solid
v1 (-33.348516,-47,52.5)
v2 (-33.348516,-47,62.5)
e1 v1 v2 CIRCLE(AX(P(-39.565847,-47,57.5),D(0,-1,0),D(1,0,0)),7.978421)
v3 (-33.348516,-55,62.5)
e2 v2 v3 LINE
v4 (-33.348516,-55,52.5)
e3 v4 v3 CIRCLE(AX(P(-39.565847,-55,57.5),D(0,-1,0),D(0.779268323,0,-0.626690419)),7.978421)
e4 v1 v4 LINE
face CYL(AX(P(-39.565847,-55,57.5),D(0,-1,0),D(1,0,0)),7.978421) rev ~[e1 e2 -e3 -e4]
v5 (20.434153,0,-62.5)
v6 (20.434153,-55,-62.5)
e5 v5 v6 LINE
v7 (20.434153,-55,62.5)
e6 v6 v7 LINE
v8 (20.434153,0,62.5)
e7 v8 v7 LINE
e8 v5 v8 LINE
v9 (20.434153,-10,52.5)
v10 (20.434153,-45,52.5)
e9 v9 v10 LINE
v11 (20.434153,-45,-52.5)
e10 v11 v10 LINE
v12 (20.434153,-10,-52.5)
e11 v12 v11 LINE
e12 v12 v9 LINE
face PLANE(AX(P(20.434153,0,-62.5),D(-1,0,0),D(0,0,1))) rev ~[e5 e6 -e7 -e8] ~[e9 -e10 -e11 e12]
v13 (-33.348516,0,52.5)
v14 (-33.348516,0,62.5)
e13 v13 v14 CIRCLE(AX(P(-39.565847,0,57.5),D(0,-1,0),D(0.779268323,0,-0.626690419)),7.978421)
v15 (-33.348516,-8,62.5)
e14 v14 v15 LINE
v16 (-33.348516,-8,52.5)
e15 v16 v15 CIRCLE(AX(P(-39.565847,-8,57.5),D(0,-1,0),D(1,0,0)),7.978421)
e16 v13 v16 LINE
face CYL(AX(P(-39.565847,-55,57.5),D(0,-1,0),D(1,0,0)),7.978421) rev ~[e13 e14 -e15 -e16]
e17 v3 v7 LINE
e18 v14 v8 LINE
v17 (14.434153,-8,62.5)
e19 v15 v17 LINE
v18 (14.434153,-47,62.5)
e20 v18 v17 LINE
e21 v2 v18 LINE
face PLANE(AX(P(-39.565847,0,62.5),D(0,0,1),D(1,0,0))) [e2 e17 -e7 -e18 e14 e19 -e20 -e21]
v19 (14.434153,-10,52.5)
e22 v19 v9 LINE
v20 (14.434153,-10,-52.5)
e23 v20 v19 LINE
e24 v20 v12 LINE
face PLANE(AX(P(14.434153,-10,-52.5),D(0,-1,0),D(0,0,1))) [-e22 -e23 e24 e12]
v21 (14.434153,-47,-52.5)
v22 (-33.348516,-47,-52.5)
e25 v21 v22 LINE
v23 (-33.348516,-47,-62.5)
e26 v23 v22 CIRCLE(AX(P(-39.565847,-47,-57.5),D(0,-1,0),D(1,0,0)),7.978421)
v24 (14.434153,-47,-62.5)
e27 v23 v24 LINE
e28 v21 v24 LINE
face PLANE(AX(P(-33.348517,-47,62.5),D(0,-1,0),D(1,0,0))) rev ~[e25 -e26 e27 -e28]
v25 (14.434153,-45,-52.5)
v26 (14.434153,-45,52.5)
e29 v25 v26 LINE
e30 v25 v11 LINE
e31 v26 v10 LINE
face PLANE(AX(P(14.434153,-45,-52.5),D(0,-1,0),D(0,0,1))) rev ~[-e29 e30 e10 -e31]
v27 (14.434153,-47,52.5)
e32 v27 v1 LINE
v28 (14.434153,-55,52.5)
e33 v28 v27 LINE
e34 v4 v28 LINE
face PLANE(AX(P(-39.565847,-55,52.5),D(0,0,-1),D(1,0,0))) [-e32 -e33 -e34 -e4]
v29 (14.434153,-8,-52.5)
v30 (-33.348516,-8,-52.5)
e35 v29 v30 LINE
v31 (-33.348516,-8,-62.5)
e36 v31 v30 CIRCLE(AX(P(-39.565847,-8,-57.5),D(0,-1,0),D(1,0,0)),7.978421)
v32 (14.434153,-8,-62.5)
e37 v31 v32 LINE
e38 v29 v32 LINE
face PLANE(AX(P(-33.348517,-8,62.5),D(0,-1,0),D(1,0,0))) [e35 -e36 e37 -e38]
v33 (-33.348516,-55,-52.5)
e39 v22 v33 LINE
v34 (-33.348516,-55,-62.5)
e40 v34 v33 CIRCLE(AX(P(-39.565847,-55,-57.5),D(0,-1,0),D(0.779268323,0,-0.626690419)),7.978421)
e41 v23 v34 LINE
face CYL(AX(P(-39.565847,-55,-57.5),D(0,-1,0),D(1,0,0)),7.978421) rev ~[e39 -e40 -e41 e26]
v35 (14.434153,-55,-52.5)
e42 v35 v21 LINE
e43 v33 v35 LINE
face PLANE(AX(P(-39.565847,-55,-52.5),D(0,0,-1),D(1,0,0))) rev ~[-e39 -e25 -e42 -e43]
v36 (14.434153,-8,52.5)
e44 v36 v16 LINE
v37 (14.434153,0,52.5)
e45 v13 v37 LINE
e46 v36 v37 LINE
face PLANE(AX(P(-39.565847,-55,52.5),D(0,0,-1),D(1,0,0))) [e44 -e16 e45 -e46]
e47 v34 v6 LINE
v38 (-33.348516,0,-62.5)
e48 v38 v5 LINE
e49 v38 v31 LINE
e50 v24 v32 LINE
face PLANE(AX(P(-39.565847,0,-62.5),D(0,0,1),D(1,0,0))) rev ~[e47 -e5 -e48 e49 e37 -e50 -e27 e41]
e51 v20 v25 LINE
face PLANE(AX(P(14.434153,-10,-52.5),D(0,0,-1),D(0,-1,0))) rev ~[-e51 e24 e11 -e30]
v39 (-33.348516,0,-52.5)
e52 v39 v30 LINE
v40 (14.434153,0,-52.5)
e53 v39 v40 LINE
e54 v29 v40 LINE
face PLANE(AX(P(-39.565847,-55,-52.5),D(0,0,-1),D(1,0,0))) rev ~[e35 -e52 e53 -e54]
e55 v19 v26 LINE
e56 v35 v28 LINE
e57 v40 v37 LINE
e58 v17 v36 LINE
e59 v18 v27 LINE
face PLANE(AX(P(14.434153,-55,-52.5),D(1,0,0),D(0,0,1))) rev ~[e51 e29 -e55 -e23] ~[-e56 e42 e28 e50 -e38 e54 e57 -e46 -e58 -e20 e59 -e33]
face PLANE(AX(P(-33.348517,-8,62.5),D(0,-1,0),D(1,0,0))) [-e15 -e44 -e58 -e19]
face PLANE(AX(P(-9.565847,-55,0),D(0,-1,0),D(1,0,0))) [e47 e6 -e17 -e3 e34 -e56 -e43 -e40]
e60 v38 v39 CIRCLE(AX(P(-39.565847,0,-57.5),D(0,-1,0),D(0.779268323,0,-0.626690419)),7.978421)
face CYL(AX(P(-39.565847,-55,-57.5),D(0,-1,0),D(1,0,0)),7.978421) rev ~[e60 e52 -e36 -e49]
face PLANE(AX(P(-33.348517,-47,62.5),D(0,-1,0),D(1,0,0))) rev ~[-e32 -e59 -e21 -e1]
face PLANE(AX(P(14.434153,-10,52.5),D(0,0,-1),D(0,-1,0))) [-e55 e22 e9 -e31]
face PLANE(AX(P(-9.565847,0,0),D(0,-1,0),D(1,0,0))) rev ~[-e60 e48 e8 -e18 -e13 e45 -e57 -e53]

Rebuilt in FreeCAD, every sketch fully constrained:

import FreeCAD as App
import Part
import Sketcher


def add_polygon(sketch, points):
    """Adds a closed chain of lines whose ends are joined by coincident constraints."""
    first, n = sketch.GeometryCount, len(points)
    for a, b in zip(points, points[1:] + points[:1]):
        sketch.addGeometry(Part.LineSegment(App.Vector(*a, 0), App.Vector(*b, 0)), False)
    for i in range(n):
        sketch.addConstraint(Sketcher.Constraint("Coincident", first + i, 2, first + (i + 1) % n, 1))

doc = App.newDocument("Part")
params = doc.addObject("Spreadsheet::Sheet", "Params")
for row, (alias, value) in enumerate([
    ("sketch1_width", "60 mm"),
    ("sketch1_height", "125 mm"),
    ("pad1_length", "55 mm"),
    ("sketch2_width", "54 mm"),
    ("sketch2_height", "105 mm"),
    ("sketch4_height", "39 mm"),
    ("sketch5_width", "35 mm"),
    ("sketch5_height", "105 mm"),
], start=1):
    params.set(f"A{row}", alias)
    params.set(f"B{row}", "=" + value)
    params.setAlias(f"B{row}", alias)

body = doc.addObject("PartDesign::Body", "Body")

# Sketch on XZ plane
sketch1 = body.newObject("Sketcher::SketchObject", "Sketch")
sketch1.AttachmentSupport = (doc.getObject("XZ_Plane"), [""])
sketch1.MapMode = "FlatFace"
add_polygon(sketch1, [(-40, 62), (-40, -62), (20, -62), (20, 62)])  # lines 0-3
sketch1.addConstraint(Sketcher.Constraint("Vertical", 0))
sketch1.addConstraint(Sketcher.Constraint("Horizontal", 1))
sketch1.addConstraint(Sketcher.Constraint("Vertical", 2))
sketch1.addConstraint(Sketcher.Constraint("Horizontal", 3))
sketch1.addConstraint(Sketcher.Constraint("DistanceX", 1, 1, 1, 2, 60.0))
sketch1.addConstraint(Sketcher.Constraint("DistanceY", 0, 2, 0, 1, 125.0))
sketch1.addConstraint(Sketcher.Constraint("DistanceY", 0, 2, -1, 1, 62.5))
sketch1.addConstraint(Sketcher.Constraint("DistanceX", 0, 2, -1, 1, 39.565847))
sketch1.setExpression("Constraints[8]", "Params.sketch1_width")
sketch1.setExpression("Constraints[9]", "Params.sketch1_height")
pad1 = body.newObject("PartDesign::Pad", "Pad")
pad1.Profile = sketch1
pad1.setExpression("Length", "Params.pad1_length")

# Sketch on XZ plane
sketch2 = body.newObject("Sketcher::SketchObject", "Sketch001")
sketch2.AttachmentSupport = (doc.getObject("XZ_Plane"), [""])
sketch2.MapMode = "FlatFace"
sketch2.AttachmentOffset = App.Placement(App.Vector(0, 0, 55), App.Rotation())
add_polygon(sketch2, [(-40, 52), (-40, -52), (14, -52), (14, 52)])  # lines 0-3
sketch2.addConstraint(Sketcher.Constraint("Vertical", 0))
sketch2.addConstraint(Sketcher.Constraint("Horizontal", 1))
sketch2.addConstraint(Sketcher.Constraint("Vertical", 2))
sketch2.addConstraint(Sketcher.Constraint("Horizontal", 3))
sketch2.addConstraint(Sketcher.Constraint("DistanceX", 1, 1, 1, 2, 54.0))
sketch2.addConstraint(Sketcher.Constraint("DistanceY", 0, 2, 0, 1, 105.0))
sketch2.addConstraint(Sketcher.Constraint("DistanceY", 0, 2, -1, 1, 52.5))
sketch2.addConstraint(Sketcher.Constraint("DistanceX", 0, 2, -1, 1, 39.565847))
sketch2.setExpression("Constraints[8]", "Params.sketch2_width")
sketch2.setExpression("Constraints[9]", "Params.sketch2_height")
pocket1 = body.newObject("PartDesign::Pocket", "Pocket")
pocket1.Profile = sketch2
pocket1.Type = "ThroughAll"

# Sketch on XZ plane
sketch3 = body.newObject("Sketcher::SketchObject", "Sketch002")
sketch3.AttachmentSupport = (doc.getObject("XZ_Plane"), [""])
sketch3.MapMode = "FlatFace"
sketch3.AttachmentOffset = App.Placement(App.Vector(0, 0, 55), App.Rotation())
sketch3.addGeometry(Part.Circle(App.Vector(-40, 58, 0), App.Vector(0, 0, 1), 8), False)
sketch3.addGeometry(Part.Circle(App.Vector(-40, -58, 0), App.Vector(0, 0, 1), 8), False)
sketch3.addConstraint(Sketcher.Constraint("Equal", 0, 1))
sketch3.addConstraint(Sketcher.Constraint("Symmetric", 0, 3, 1, 3, -1))
sketch3.addConstraint(Sketcher.Constraint("DistanceY", 1, 3, 0, 3, 115.0))
sketch3.addConstraint(Sketcher.Constraint("Diameter", 0, 15.956842))
sketch3.addConstraint(Sketcher.Constraint("DistanceX", 0, 3, -1, 1, 39.565847))
pocket2 = body.newObject("PartDesign::Pocket", "Pocket001")
pocket2.Profile = sketch3
pocket2.Type = "ThroughAll"

# Sketch on XY plane
sketch4 = body.newObject("Sketcher::SketchObject", "Sketch003")
sketch4.AttachmentSupport = (doc.getObject("XY_Plane"), [""])
sketch4.MapMode = "FlatFace"
sketch4.AttachmentOffset = App.Placement(App.Vector(0, 0, 62.5), App.Rotation())
add_polygon(sketch4, [(-33, -8), (-33, -47), (14, -47), (14, -8)])  # lines 0-3
sketch4.addConstraint(Sketcher.Constraint("Vertical", 0))
sketch4.addConstraint(Sketcher.Constraint("Horizontal", 1))
sketch4.addConstraint(Sketcher.Constraint("Vertical", 2))
sketch4.addConstraint(Sketcher.Constraint("Horizontal", 3))
sketch4.addConstraint(Sketcher.Constraint("DistanceY", 0, 2, 0, 1, 39.0))
sketch4.addConstraint(Sketcher.Constraint("DistanceY", 0, 2, -1, 1, 47.0))
sketch4.addConstraint(Sketcher.Constraint("DistanceX", 1, 1, 1, 2, 47.78267))
sketch4.addConstraint(Sketcher.Constraint("DistanceX", 0, 2, -1, 1, 33.348517))
sketch4.setExpression("Constraints[8]", "Params.sketch4_height")
pocket3 = body.newObject("PartDesign::Pocket", "Pocket002")
pocket3.Profile = sketch4
pocket3.Type = "ThroughAll"

# Sketch on YZ plane
sketch5 = body.newObject("Sketcher::SketchObject", "Sketch004")
sketch5.AttachmentSupport = (doc.getObject("YZ_Plane"), [""])
sketch5.MapMode = "FlatFace"
sketch5.AttachmentOffset = App.Placement(App.Vector(0, 0, 14.434153), App.Rotation())
add_polygon(sketch5, [(-10, 52), (-10, -52), (-45, -52), (-45, 52)])  # lines 0-3
sketch5.addConstraint(Sketcher.Constraint("Vertical", 0))
sketch5.addConstraint(Sketcher.Constraint("Horizontal", 1))
sketch5.addConstraint(Sketcher.Constraint("Vertical", 2))
sketch5.addConstraint(Sketcher.Constraint("Horizontal", 3))
sketch5.addConstraint(Sketcher.Constraint("DistanceX", 1, 2, 1, 1, 35.0))
sketch5.addConstraint(Sketcher.Constraint("DistanceY", 0, 2, 0, 1, 105.0))
sketch5.addConstraint(Sketcher.Constraint("DistanceX", 0, 2, -1, 1, 10.0))
sketch5.addConstraint(Sketcher.Constraint("DistanceY", 0, 2, -1, 1, 52.5))
sketch5.setExpression("Constraints[8]", "Params.sketch5_width")
sketch5.setExpression("Constraints[9]", "Params.sketch5_height")
pocket4 = body.newObject("PartDesign::Pocket", "Pocket003")
pocket4.Profile = sketch5
pocket4.Type = "ThroughAll"
pocket4.Reversed = True

doc.recompute()
